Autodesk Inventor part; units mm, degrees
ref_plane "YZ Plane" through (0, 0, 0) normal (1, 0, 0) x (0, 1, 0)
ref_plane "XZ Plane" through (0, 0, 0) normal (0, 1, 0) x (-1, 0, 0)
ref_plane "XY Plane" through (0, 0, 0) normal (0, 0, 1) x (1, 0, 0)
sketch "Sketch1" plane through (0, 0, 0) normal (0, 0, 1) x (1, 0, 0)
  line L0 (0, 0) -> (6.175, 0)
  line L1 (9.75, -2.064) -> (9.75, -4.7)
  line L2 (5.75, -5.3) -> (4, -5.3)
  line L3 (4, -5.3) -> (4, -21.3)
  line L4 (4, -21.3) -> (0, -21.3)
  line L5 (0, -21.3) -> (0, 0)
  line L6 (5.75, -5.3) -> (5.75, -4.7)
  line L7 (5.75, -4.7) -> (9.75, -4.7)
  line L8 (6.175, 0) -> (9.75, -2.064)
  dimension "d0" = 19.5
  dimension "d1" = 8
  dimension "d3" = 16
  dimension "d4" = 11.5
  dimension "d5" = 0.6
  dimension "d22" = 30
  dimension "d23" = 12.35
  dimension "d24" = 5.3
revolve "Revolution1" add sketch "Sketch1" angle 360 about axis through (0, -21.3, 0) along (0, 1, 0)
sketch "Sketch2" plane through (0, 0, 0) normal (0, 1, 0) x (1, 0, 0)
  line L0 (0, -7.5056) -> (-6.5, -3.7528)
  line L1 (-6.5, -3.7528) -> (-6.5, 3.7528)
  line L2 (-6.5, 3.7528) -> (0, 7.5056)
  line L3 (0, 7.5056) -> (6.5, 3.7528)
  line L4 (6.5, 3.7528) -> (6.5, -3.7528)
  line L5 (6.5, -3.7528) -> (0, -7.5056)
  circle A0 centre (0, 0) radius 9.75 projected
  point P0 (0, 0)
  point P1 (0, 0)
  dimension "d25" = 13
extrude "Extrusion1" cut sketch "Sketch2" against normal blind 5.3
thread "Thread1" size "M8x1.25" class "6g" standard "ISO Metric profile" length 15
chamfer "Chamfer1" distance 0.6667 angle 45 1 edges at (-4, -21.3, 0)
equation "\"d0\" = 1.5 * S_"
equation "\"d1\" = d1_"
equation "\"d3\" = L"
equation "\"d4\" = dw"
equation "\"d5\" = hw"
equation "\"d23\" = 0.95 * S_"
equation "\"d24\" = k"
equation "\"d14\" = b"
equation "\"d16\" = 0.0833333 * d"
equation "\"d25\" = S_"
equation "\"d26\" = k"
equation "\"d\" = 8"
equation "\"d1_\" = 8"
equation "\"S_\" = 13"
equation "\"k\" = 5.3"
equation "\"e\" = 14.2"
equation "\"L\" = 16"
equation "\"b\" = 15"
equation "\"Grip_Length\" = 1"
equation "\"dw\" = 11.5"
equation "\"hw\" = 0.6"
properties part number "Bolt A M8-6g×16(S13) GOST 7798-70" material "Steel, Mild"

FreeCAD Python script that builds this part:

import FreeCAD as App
import Part
import Sketcher
from FreeCAD import Vector
Q = App.Units.Quantity


def edges_at(feature, points):
    """Names of the edges that pass closest to the given points."""
    edges = feature.Shape.Edges
    near = lambda p: min(range(len(edges)), key=lambda i: edges[i].distToShape(Part.Vertex(*p))[0])
    return sorted({f"Edge{near(p) + 1}" for p in points})

doc = App.newDocument("Part")
body = doc.addObject("PartDesign::Body", "Body")

# Sketch on XY plane
sketch1 = body.newObject("Sketcher::SketchObject", "Sketch")
sketch1.AttachmentSupport = (doc.getObject("XY_Plane"), [""])
sketch1.MapMode = "FlatFace"
sketch1.addGeometry([
    Part.LineSegment(Vector(6.2, 0, 0), Vector(0, 0, 0)),  # 0
    Part.LineSegment(Vector(0, 0, 0), Vector(0, -21.3, 0)),  # 1
    Part.LineSegment(Vector(0, -21.3, 0), Vector(4, -21.3, 0)),  # 2
    Part.LineSegment(Vector(4, -21.3, 0), Vector(4, -5.3, 0)),  # 3
    Part.LineSegment(Vector(4, -5.3, 0), Vector(5.8, -5.3, 0)),  # 4
    Part.LineSegment(Vector(5.8, -5.3, 0), Vector(5.8, -4.7, 0)),  # 5
    Part.LineSegment(Vector(5.8, -4.7, 0), Vector(9.8, -4.7, 0)),  # 6
    Part.LineSegment(Vector(9.8, -4.7, 0), Vector(9.8, -2.1, 0)),  # 7
    Part.LineSegment(Vector(9.8, -2.1, 0), Vector(6.2, 0, 0)),  # 8
], False)
sketch1.addConstraint([
    Sketcher.Constraint("Coincident", 0, 2, 1, 1),
    Sketcher.Constraint("Coincident", 1, 2, 2, 1),
    Sketcher.Constraint("Coincident", 2, 2, 3, 1),
    Sketcher.Constraint("Coincident", 3, 2, 4, 1),
    Sketcher.Constraint("Coincident", 4, 2, 5, 1),
    Sketcher.Constraint("Coincident", 5, 2, 6, 1),
    Sketcher.Constraint("Coincident", 6, 2, 7, 1),
    Sketcher.Constraint("Coincident", 7, 2, 8, 1),
    Sketcher.Constraint("Coincident", 8, 2, 0, 1),
    Sketcher.Constraint("Horizontal", 0),
    Sketcher.Constraint("Vertical", 1),
    Sketcher.Constraint("Horizontal", 2),
    Sketcher.Constraint("Vertical", 3),
    Sketcher.Constraint("Horizontal", 4),
    Sketcher.Constraint("Vertical", 5),
    Sketcher.Constraint("Horizontal", 6),
    Sketcher.Constraint("Vertical", 7),
    Sketcher.Constraint("Coincident", 0, 2, -1, 1),
    Sketcher.Constraint("Equal", 2, 6),
    Sketcher.Constraint("DistanceY", 3, 1, 3, 2, Q("16 mm")),
    Sketcher.Constraint("DistanceY", 5, 1, 5, 2, Q("0.6 mm")),
    Sketcher.Constraint("DistanceY", 3, 2, -1, 1, Q("5.3 mm")),
    Sketcher.Constraint("DistanceX", 2, 1, 2, 2, Q("4 mm")),
    Sketcher.Constraint("Angle", 8, Q("150.0003 deg")),
    Sketcher.Constraint("DistanceX", 4, 1, 4, 2, Q("1.75 mm")),
    Sketcher.Constraint("DistanceX", 0, 2, 0, 1, Q("6.175 mm")),
])
revolution = body.newObject("PartDesign::Revolution", "Revolution")
revolution.Profile = sketch1
revolution.ReferenceAxis = (sketch1, ["V_Axis"])
revolution.Angle = 360

# Sketch on XZ plane
sketch2 = body.newObject("Sketcher::SketchObject", "Sketch001")
sketch2.AttachmentSupport = (doc.getObject("XZ_Plane"), [""])
sketch2.MapMode = "FlatFace"
sketch2.addGeometry([
    Part.Circle(Vector(0, 0, 0), Vector(0, 0, 1), 10),  # 0
    Part.LineSegment(Vector(6, 4, 0), Vector(0, 8, 0)),  # 1
    Part.LineSegment(Vector(0, 8, 0), Vector(-6, 4, 0)),  # 2
    Part.LineSegment(Vector(-6, 4, 0), Vector(-6, -4, 0)),  # 3
    Part.LineSegment(Vector(-6, -4, 0), Vector(0, -8, 0)),  # 4
    Part.LineSegment(Vector(0, -8, 0), Vector(6, -4, 0)),  # 5
    Part.LineSegment(Vector(6, -4, 0), Vector(6, 4, 0)),  # 6
], False)
sketch2.addConstraint([
    Sketcher.Constraint("Coincident", 1, 2, 2, 1),
    Sketcher.Constraint("Coincident", 2, 2, 3, 1),
    Sketcher.Constraint("Coincident", 3, 2, 4, 1),
    Sketcher.Constraint("Coincident", 4, 2, 5, 1),
    Sketcher.Constraint("Coincident", 5, 2, 6, 1),
    Sketcher.Constraint("Coincident", 6, 2, 1, 1),
    Sketcher.Constraint("Vertical", 3),
    Sketcher.Constraint("Vertical", 6),
    Sketcher.Constraint("Coincident", 0, 3, -1, 1),
    Sketcher.Constraint("Symmetric", 1, 2, 4, 2, -1, 1),
    Sketcher.Constraint("Symmetric", 2, 2, 5, 2, -1, 1),
    Sketcher.Constraint("PointOnObject", 1, 2, -2),
    Sketcher.Constraint("Parallel", 1, 4),
    Sketcher.Constraint("Horizontal", 3, 2, 5, 2),
    Sketcher.Constraint("DistanceX", 3, 2, 5, 2, Q("13 mm")),
    Sketcher.Constraint("Diameter", 0, Q("19.5 mm")),
    Sketcher.Constraint("Angle", 1, Q("149.9998 deg")),
    Sketcher.Constraint("DistanceY", 3, 2, 3, 1, Q("7.5056 mm")),
])
pocket1 = body.newObject("PartDesign::Pocket", "Pocket")
pocket1.Profile = sketch2
pocket1.Length = 5.3
pocket1.Reversed = True
doc.recompute()

chamfer = body.newObject("PartDesign::Chamfer", "Chamfer")
chamfer.Base = (pocket1, edges_at(pocket1, [(-4, -21.3, 0)]))
chamfer.Size = 0.6667

doc.recompute()
